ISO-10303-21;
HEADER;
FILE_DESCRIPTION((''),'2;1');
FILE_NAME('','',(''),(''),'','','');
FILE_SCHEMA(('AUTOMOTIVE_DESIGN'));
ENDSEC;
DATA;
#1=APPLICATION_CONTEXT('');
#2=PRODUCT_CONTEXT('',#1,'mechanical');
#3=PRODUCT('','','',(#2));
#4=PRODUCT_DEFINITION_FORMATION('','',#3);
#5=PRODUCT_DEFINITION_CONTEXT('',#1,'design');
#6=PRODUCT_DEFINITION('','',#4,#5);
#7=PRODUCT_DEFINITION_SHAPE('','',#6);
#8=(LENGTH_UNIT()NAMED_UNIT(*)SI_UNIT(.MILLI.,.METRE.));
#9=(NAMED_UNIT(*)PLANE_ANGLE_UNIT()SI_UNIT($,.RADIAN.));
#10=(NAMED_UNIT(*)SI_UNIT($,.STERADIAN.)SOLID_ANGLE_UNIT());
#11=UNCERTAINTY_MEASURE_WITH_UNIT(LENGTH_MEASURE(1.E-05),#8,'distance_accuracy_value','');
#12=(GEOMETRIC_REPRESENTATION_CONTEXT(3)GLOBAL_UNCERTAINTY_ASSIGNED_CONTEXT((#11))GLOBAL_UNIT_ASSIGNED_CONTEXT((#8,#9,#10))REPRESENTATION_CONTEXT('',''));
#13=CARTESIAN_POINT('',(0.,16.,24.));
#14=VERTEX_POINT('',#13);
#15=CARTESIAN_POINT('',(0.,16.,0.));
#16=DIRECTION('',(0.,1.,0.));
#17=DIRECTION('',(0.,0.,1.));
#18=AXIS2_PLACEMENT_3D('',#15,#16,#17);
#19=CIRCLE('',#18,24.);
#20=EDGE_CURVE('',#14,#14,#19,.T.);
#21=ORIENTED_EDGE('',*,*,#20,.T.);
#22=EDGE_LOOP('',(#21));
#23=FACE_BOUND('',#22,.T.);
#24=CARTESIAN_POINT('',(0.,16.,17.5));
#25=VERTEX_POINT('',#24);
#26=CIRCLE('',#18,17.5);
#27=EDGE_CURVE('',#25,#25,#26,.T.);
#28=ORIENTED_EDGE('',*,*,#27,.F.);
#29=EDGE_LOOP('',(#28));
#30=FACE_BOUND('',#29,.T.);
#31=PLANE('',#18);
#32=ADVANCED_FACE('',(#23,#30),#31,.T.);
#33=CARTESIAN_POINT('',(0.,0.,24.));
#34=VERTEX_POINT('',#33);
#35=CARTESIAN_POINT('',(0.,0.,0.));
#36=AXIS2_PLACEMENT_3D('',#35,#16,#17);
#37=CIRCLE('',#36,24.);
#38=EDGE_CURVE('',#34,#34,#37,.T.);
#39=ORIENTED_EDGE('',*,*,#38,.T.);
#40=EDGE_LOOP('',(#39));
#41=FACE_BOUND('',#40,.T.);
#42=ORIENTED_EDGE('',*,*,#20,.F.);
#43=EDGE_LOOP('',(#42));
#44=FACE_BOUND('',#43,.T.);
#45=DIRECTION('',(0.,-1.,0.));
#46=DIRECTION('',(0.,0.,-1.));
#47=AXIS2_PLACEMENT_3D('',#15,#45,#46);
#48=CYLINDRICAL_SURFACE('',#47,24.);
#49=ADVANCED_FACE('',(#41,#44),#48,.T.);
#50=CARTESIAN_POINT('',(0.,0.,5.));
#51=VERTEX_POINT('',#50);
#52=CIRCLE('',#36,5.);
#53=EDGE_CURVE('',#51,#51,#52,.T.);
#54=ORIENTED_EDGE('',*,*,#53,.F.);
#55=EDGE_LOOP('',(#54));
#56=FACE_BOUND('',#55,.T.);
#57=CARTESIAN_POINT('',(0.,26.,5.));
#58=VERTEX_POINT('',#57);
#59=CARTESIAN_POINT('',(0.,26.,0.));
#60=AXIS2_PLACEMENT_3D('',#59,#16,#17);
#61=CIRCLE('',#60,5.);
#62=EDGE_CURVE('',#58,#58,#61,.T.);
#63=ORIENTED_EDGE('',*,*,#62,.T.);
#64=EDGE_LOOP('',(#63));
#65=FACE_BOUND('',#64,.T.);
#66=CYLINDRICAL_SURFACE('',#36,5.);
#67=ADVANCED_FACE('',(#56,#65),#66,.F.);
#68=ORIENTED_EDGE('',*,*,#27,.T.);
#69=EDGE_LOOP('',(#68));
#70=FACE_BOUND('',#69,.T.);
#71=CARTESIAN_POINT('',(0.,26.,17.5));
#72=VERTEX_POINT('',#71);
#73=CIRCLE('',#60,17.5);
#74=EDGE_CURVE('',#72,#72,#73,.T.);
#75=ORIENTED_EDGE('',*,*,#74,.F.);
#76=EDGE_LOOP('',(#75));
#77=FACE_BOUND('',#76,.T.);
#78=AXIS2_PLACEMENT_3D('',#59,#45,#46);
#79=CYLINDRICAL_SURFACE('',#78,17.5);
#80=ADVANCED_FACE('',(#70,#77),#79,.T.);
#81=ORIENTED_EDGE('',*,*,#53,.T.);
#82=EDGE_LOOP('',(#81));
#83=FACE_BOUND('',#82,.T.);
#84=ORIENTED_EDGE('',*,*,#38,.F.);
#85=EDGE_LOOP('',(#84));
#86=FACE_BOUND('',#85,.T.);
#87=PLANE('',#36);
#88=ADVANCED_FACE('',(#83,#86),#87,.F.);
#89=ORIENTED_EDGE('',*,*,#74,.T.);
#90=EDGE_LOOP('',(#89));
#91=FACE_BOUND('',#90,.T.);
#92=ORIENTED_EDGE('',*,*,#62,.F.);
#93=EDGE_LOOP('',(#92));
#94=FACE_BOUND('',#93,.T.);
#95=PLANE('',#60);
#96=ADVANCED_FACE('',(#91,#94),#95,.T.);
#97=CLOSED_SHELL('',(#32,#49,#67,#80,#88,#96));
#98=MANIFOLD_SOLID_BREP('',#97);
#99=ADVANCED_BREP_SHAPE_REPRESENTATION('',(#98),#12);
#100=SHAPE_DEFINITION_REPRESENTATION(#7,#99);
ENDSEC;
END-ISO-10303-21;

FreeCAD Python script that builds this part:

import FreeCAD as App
import Part
import Sketcher

V = App.Vector

doc = App.newDocument("Part")
params = doc.addObject("Spreadsheet::Sheet", "Params")
for row, (alias, value) in enumerate([
    ("sketch1_diameter", "48 mm"),
    ("pad1_length", "16 mm"),
    ("sketch2_diameter", "35 mm"),
    ("pad2_length", "10 mm"),
    ("sketch3_diameter", "10 mm"),
    ("pocket1_length", "26 mm"),
], start=1):
    params.set(f"A{row}", alias)
    params.set(f"B{row}", "=" + value)
    params.setAlias(f"B{row}", alias)

body = doc.addObject("PartDesign::Body", "Body")

sketch1 = doc.addObject("Sketcher::SketchObject", "Sketch")
body.addObject(sketch1)
sketch1.AttachmentSupport = (doc.XZ_Plane, [""])
sketch1.MapMode = "FlatFace"
sketch1.addGeometry(Part.Circle(V(0, 0, 0), V(0, 0, 1), 24), False)
sketch1.addConstraint([
    Sketcher.Constraint("Coincident", 0, 3, -1, 1),
    Sketcher.Constraint("Diameter", 0, 48.0),
])
sketch1.setExpression("Constraints[1]", "Params.sketch1_diameter")
pad1 = doc.addObject("PartDesign::Pad", "Pad")
body.addObject(pad1)
pad1.Profile = sketch1
pad1.setExpression("Length", "Params.pad1_length")
pad1.Reversed = True

sketch2 = doc.addObject("Sketcher::SketchObject", "Sketch001")
body.addObject(sketch2)
sketch2.AttachmentSupport = (doc.XZ_Plane, [""])
sketch2.MapMode = "FlatFace"
sketch2.AttachmentOffset = App.Placement(V(0, 0, -16), App.Rotation())
sketch2.addGeometry(Part.Circle(V(0, 0, 0), V(0, 0, 1), 17.5), False)
sketch2.addConstraint([
    Sketcher.Constraint("Coincident", 0, 3, -1, 1),
    Sketcher.Constraint("Diameter", 0, 35.0),
])
sketch2.setExpression("Constraints[1]", "Params.sketch2_diameter")
pad2 = doc.addObject("PartDesign::Pad", "Pad001")
body.addObject(pad2)
pad2.Profile = sketch2
pad2.setExpression("Length", "Params.pad2_length")
pad2.Reversed = True

sketch3 = doc.addObject("Sketcher::SketchObject", "Sketch002")
body.addObject(sketch3)
sketch3.AttachmentSupport = (doc.XZ_Plane, [""])
sketch3.MapMode = "FlatFace"
sketch3.AttachmentOffset = App.Placement(V(0, 0, -26), App.Rotation())
sketch3.addGeometry(Part.Circle(V(0, 0, 0), V(0, 0, 1), 5), False)
sketch3.addConstraint([
    Sketcher.Constraint("Coincident", 0, 3, -1, 1),
    Sketcher.Constraint("Diameter", 0, 10.0),
])
sketch3.setExpression("Constraints[1]", "Params.sketch3_diameter")
pocket1 = doc.addObject("PartDesign::Pocket", "Pocket")
body.addObject(pocket1)
pocket1.Profile = sketch3
pocket1.setExpression("Length", "Params.pocket1_length")
pocket1.Reversed = True

doc.recompute()
